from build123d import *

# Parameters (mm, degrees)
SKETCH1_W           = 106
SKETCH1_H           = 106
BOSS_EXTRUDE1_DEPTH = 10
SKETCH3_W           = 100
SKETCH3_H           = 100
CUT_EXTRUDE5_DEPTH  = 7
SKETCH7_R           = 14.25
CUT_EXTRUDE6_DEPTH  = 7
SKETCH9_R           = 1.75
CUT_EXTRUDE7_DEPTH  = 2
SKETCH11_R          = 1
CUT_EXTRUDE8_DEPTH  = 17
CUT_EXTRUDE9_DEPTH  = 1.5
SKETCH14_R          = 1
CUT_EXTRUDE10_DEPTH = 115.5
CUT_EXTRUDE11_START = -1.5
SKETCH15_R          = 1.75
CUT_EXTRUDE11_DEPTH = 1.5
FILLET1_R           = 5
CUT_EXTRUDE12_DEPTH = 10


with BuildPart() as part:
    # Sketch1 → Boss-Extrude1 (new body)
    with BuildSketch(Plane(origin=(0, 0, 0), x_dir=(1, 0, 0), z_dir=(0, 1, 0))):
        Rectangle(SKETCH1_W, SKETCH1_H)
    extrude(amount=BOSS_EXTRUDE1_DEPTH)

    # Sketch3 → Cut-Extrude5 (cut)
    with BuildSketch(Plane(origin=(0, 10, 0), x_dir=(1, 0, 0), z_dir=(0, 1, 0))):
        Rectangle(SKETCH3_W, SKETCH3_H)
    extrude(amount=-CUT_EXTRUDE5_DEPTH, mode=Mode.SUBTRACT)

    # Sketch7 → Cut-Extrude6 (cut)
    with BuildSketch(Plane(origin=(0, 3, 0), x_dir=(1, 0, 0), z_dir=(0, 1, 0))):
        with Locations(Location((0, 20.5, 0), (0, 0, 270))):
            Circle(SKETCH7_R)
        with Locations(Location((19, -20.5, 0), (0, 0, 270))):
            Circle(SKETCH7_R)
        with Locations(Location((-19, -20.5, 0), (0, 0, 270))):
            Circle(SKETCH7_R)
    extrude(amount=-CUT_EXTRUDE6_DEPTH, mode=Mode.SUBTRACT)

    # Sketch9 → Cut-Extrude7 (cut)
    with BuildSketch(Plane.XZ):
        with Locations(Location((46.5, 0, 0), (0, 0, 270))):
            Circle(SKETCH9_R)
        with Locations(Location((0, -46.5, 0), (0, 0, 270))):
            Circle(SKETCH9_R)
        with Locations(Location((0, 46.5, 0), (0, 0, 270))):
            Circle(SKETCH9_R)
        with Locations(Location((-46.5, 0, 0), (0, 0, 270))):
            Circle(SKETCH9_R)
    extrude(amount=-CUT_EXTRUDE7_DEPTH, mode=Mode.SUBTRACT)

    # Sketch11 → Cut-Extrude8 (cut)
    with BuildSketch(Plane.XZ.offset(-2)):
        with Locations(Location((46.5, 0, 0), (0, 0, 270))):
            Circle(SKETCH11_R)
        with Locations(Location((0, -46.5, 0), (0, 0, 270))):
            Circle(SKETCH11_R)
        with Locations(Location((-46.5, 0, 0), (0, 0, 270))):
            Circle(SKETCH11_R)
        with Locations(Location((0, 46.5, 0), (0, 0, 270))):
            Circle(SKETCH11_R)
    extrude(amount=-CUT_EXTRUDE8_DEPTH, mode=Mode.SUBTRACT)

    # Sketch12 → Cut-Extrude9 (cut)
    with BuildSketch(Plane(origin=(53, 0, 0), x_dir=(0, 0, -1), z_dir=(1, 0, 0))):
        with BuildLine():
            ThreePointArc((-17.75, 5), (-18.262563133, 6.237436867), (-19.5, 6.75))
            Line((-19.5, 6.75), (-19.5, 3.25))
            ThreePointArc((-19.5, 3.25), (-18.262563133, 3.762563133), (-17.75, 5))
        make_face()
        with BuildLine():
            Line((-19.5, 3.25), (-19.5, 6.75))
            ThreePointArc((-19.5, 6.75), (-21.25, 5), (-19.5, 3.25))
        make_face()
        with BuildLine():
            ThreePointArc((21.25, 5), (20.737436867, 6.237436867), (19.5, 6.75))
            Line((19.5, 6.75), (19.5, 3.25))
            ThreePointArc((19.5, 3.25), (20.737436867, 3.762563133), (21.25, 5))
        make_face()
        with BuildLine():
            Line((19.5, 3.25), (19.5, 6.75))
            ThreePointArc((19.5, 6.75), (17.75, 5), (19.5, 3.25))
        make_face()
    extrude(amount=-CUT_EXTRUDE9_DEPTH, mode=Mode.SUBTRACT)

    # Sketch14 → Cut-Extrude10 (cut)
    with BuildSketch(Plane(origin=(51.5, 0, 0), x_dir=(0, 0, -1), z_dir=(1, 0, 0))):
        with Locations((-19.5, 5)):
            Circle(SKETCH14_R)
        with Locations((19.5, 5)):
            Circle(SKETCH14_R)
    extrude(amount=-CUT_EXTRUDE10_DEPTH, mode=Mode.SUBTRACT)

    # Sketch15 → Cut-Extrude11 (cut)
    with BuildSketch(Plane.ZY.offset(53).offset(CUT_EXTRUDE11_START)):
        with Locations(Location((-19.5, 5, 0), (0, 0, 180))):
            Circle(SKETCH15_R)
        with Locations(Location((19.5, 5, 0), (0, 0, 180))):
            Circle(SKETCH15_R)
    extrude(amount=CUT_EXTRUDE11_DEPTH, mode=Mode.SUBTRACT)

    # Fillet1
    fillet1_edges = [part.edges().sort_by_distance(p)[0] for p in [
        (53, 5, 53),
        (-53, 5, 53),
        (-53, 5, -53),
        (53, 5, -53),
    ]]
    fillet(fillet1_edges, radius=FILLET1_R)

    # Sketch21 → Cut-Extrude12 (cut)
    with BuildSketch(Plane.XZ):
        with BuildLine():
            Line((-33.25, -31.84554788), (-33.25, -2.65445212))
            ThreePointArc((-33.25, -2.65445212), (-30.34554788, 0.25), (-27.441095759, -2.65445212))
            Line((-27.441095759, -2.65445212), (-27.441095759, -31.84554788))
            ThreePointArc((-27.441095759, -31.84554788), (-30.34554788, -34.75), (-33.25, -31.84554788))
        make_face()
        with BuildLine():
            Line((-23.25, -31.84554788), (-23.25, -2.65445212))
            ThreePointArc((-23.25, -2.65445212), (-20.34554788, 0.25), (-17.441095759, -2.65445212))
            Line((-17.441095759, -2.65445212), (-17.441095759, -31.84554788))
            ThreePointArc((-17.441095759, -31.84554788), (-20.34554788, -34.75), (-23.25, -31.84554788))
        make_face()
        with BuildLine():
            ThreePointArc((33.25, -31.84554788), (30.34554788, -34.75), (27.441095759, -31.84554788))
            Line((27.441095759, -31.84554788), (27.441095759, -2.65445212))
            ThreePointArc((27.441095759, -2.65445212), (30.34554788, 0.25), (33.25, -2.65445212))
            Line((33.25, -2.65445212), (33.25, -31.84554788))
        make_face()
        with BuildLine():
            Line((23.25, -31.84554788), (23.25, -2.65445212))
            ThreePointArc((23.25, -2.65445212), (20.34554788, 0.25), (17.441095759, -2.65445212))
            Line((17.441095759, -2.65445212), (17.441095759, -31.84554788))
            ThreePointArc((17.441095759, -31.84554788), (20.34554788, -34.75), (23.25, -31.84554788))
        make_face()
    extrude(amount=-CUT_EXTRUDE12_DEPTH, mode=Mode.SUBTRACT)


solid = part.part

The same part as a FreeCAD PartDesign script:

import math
import FreeCAD as App
import Part
import Sketcher

V = App.Vector


def edges_at(feature, points):
    """Names of the edges that pass closest to the given points."""
    edges = feature.Shape.Edges
    near = lambda p: min(range(len(edges)), key=lambda i: edges[i].distToShape(Part.Vertex(*p))[0])
    return sorted({f"Edge{near(p) + 1}" for p in points})

doc = App.newDocument("Part")
body = doc.addObject("PartDesign::Body", "Body")

sketch1 = doc.addObject("Sketcher::SketchObject", "Sketch")
body.addObject(sketch1)
sketch1.AttachmentSupport = (doc.XZ_Plane, [""])
sketch1.MapMode = "FlatFace"
sketch1.addGeometry([
    Part.LineSegment(V(-53, -53, 0), V(-53, 53, 0)),
    Part.LineSegment(V(-53, 53, 0), V(53, 53, 0)),
    Part.LineSegment(V(53, 53, 0), V(53, -53, 0)),
    Part.LineSegment(V(53, -53, 0), V(-53, -53, 0)),
], False)
sketch1.addConstraint([
    Sketcher.Constraint("Coincident", 0, 2, 1, 1),
    Sketcher.Constraint("Coincident", 1, 2, 2, 1),
    Sketcher.Constraint("Coincident", 2, 2, 3, 1),
    Sketcher.Constraint("Coincident", 3, 2, 0, 1),
    Sketcher.Constraint("Vertical", 0),
    Sketcher.Constraint("Horizontal", 1),
    Sketcher.Constraint("Vertical", 2),
    Sketcher.Constraint("Horizontal", 3),
    Sketcher.Constraint("Symmetric", 0, 2, 2, 2, -1, 1),
    Sketcher.Constraint("Equal", 3, 0),
    Sketcher.Constraint("DistanceX", 1, 1, 1, 2, 106.0),
])
pad1 = doc.addObject("PartDesign::Pad", "Pad")
body.addObject(pad1)
pad1.Profile = sketch1
pad1.Length = 10
pad1.Reversed = True

sketch2 = doc.addObject("Sketcher::SketchObject", "Sketch001")
body.addObject(sketch2)
sketch2.AttachmentSupport = (doc.XZ_Plane, [""])
sketch2.MapMode = "FlatFace"
sketch2.AttachmentOffset = App.Placement(V(0, 0, -10), App.Rotation())
sketch2.addGeometry([
    Part.LineSegment(V(-50, -50, 0), V(-50, 50, 0)),
    Part.LineSegment(V(-50, 50, 0), V(50, 50, 0)),
    Part.LineSegment(V(50, 50, 0), V(50, -50, 0)),
    Part.LineSegment(V(50, -50, 0), V(-50, -50, 0)),
], False)
sketch2.addConstraint([
    Sketcher.Constraint("Coincident", 0, 2, 1, 1),
    Sketcher.Constraint("Coincident", 1, 2, 2, 1),
    Sketcher.Constraint("Coincident", 2, 2, 3, 1),
    Sketcher.Constraint("Coincident", 3, 2, 0, 1),
    Sketcher.Constraint("Vertical", 0),
    Sketcher.Constraint("Horizontal", 1),
    Sketcher.Constraint("Vertical", 2),
    Sketcher.Constraint("Horizontal", 3),
    Sketcher.Constraint("Symmetric", 0, 2, 2, 2, -1, 1),
    Sketcher.Constraint("Equal", 3, 0),
    Sketcher.Constraint("DistanceX", 1, 1, 1, 2, 100.0),
])
pocket1 = doc.addObject("PartDesign::Pocket", "Pocket")
body.addObject(pocket1)
pocket1.Profile = sketch2
pocket1.Length = 7
pocket1.Reversed = True

sketch3 = doc.addObject("Sketcher::SketchObject", "Sketch002")
body.addObject(sketch3)
sketch3.AttachmentSupport = (doc.XZ_Plane, [""])
sketch3.MapMode = "FlatFace"
sketch3.AttachmentOffset = App.Placement(V(0, 0, -3), App.Rotation())
sketch3.addGeometry([
    Part.Circle(V(0, -20, 0), V(0, 0, 1), 14),
    Part.Circle(V(19, 20, 0), V(0, 0, 1), 14),
    Part.Circle(V(-19, 20, 0), V(0, 0, 1), 14),
], False)
sketch3.addConstraint([
    Sketcher.Constraint("Equal", 0, 1),
    Sketcher.Constraint("Equal", 1, 2),
    Sketcher.Constraint("Symmetric", 1, 3, 2, 3, -2),
    Sketcher.Constraint("PointOnObject", 0, 3, -2),
    Sketcher.Constraint("Diameter", 0, 28.5),
    Sketcher.Constraint("DistanceX", -1, 1, 1, 3, 19.0),
    Sketcher.Constraint("DistanceY", 0, 3, 1, 3, 41.0),
    Sketcher.Constraint("DistanceY", 0, 3, -1, 1, 20.5),
])
pocket2 = doc.addObject("PartDesign::Pocket", "Pocket001")
body.addObject(pocket2)
pocket2.Profile = sketch3
pocket2.Length = 7
pocket2.Reversed = True

sketch4 = doc.addObject("Sketcher::SketchObject", "Sketch003")
body.addObject(sketch4)
sketch4.AttachmentSupport = (doc.XZ_Plane, [""])
sketch4.MapMode = "FlatFace"
sketch4.addGeometry([
    Part.Circle(V(46.5, 0, 0), V(0, 0, 1), 1.8),
    Part.Circle(V(0, -46.5, 0), V(0, 0, 1), 1.8),
    Part.Circle(V(0, 46.5, 0), V(0, 0, 1), 1.8),
    Part.Circle(V(-46.5, 0, 0), V(0, 0, 1), 1.8),
], False)
sketch4.addConstraint([
    Sketcher.Constraint("Equal", 0, 1),
    Sketcher.Constraint("Equal", 1, 2),
    Sketcher.Constraint("Equal", 2, 3),
    Sketcher.Constraint("Symmetric", 1, 3, 2, 3, -1, 1),
    Sketcher.Constraint("Symmetric", 0, 3, 3, 3, -1, 1),
    Sketcher.Constraint("PointOnObject", 0, 3, -1),
    Sketcher.Constraint("PointOnObject", 1, 3, -2),
    Sketcher.Constraint("Diameter", 0, 3.5),
    Sketcher.Constraint("DistanceY", 1, 3, 2, 3, 93.0),
    Sketcher.Constraint("DistanceX", 3, 3, 0, 3, 93.0),
])
pocket3 = doc.addObject("PartDesign::Pocket", "Pocket002")
body.addObject(pocket3)
pocket3.Profile = sketch4
pocket3.Length = 2

sketch5 = doc.addObject("Sketcher::SketchObject", "Sketch004")
body.addObject(sketch5)
sketch5.AttachmentSupport = (doc.XZ_Plane, [""])
sketch5.MapMode = "FlatFace"
sketch5.AttachmentOffset = App.Placement(V(0, 0, -2), App.Rotation())
sketch5.addGeometry([
    Part.Circle(V(46.5, 0, 0), V(0, 0, 1), 1),
    Part.Circle(V(0, -46.5, 0), V(0, 0, 1), 1),
    Part.Circle(V(-46.5, 0, 0), V(0, 0, 1), 1),
    Part.Circle(V(0, 46.5, 0), V(0, 0, 1), 1),
], False)
sketch5.addConstraint([
    Sketcher.Constraint("Equal", 0, 1),
    Sketcher.Constraint("Equal", 1, 2),
    Sketcher.Constraint("Equal", 2, 3),
    Sketcher.Constraint("Symmetric", 0, 3, 2, 3, -1, 1),
    Sketcher.Constraint("Symmetric", 1, 3, 3, 3, -1, 1),
    Sketcher.Constraint("PointOnObject", 0, 3, -1),
    Sketcher.Constraint("PointOnObject", 1, 3, -2),
    Sketcher.Constraint("Diameter", 0, 2.0),
    Sketcher.Constraint("DistanceX", 2, 3, 0, 3, 93.0),
    Sketcher.Constraint("DistanceY", 1, 3, 3, 3, 93.0),
])
pocket4 = doc.addObject("PartDesign::Pocket", "Pocket003")
body.addObject(pocket4)
pocket4.Profile = sketch5
pocket4.Length = 17

sketch6 = doc.addObject("Sketcher::SketchObject", "Sketch005")
body.addObject(sketch6)
sketch6.AttachmentSupport = (doc.YZ_Plane, [""])
sketch6.MapMode = "FlatFace"
sketch6.AttachmentOffset = App.Placement(V(0, 0, 53), App.Rotation())
sketch6.addGeometry([
    Part.ArcOfCircle(Part.Circle(V(5, 19.5, 0), V(0, 0, 1), 1.8), math.radians(-90), math.radians(0)),
    Part.ArcOfCircle(Part.Circle(V(5, 19.5, 0), V(0, 0, 1), 1.8), math.radians(0), math.radians(180)),
    Part.ArcOfCircle(Part.Circle(V(5, 19.5, 0), V(0, 0, 1), 1.8), math.radians(180), math.radians(270)),
    Part.ArcOfCircle(Part.Circle(V(5, -19.5, 0), V(0, 0, 1), 1.8), math.radians(-90), math.radians(0)),
    Part.ArcOfCircle(Part.Circle(V(5, -19.5, 0), V(0, 0, 1), 1.8), math.radians(0), math.radians(180)),
    Part.ArcOfCircle(Part.Circle(V(5, -19.5, 0), V(0, 0, 1), 1.8), math.radians(180), math.radians(270)),
], False)
sketch6.addConstraint([
    Sketcher.Constraint("Tangent", 0, 2, 1, 1),
    Sketcher.Constraint("Tangent", 1, 2, 2, 1),
    Sketcher.Constraint("Tangent", 2, 2, 0, 1),
    Sketcher.Constraint("Tangent", 3, 2, 4, 1),
    Sketcher.Constraint("Tangent", 4, 2, 5, 1),
    Sketcher.Constraint("Tangent", 5, 2, 3, 1),
    Sketcher.Constraint("Equal", 2, 3),
    Sketcher.Constraint("Symmetric", 0, 3, 3, 3, -1),
    Sketcher.Constraint("Horizontal", 2, 3, 0, 2),
    Sketcher.Constraint("Horizontal", 0, 2, 1, 2),
    Sketcher.Constraint("Horizontal", 5, 3, 3, 2),
    Sketcher.Constraint("Horizontal", 3, 2, 4, 2),
    Sketcher.Constraint("Vertical", 5, 3, 2, 2),
    Sketcher.Constraint("Vertical", 2, 2, 5, 2),
    Sketcher.Constraint("Radius", 0, 1.75),
    Sketcher.Constraint("DistanceX", -1, 1, 0, 3, 5.0),
    Sketcher.Constraint("DistanceY", 3, 3, 0, 3, 39.0),
])
pocket5 = doc.addObject("PartDesign::Pocket", "Pocket004")
body.addObject(pocket5)
pocket5.Profile = sketch6
pocket5.Length = 1.5

sketch7 = doc.addObject("Sketcher::SketchObject", "Sketch006")
body.addObject(sketch7)
sketch7.AttachmentSupport = (doc.YZ_Plane, [""])
sketch7.MapMode = "FlatFace"
sketch7.AttachmentOffset = App.Placement(V(0, 0, 51.5), App.Rotation())
sketch7.addGeometry([
    Part.Circle(V(5, 19.5, 0), V(0, 0, 1), 1),
    Part.Circle(V(5, -19.5, 0), V(0, 0, 1), 1),
], False)
sketch7.addConstraint([
    Sketcher.Constraint("Equal", 0, 1),
    Sketcher.Constraint("Symmetric", 0, 3, 1, 3, -1),
    Sketcher.Constraint("Diameter", 0, 2.0),
    Sketcher.Constraint("DistanceX", -1, 1, 0, 3, 5.0),
    Sketcher.Constraint("DistanceY", 1, 3, 0, 3, 39.0),
])
pocket6 = doc.addObject("PartDesign::Pocket", "Pocket005")
body.addObject(pocket6)
pocket6.Profile = sketch7
pocket6.Length = 115.5

sketch8 = doc.addObject("Sketcher::SketchObject", "Sketch007")
body.addObject(sketch8)
sketch8.AttachmentSupport = (doc.YZ_Plane, [""])
sketch8.MapMode = "FlatFace"
sketch8.AttachmentOffset = App.Placement(V(0, 0, -51.5), App.Rotation())
sketch8.addGeometry([
    Part.Circle(V(5, -19.5, 0), V(0, 0, 1), 1.8),
    Part.Circle(V(5, 19.5, 0), V(0, 0, 1), 1.8),
], False)
sketch8.addConstraint([
    Sketcher.Constraint("Equal", 0, 1),
    Sketcher.Constraint("Symmetric", 0, 3, 1, 3, -1),
    Sketcher.Constraint("Diameter", 0, 3.5),
    Sketcher.Constraint("DistanceX", -1, 1, 0, 3, 5.0),
    Sketcher.Constraint("DistanceY", 0, 3, 1, 3, 39.0),
])
pocket7 = doc.addObject("PartDesign::Pocket", "Pocket006")
body.addObject(pocket7)
pocket7.Profile = sketch8
pocket7.Length = 1.5
doc.recompute()

fillet = doc.addObject("PartDesign::Fillet", "Fillet")
body.addObject(fillet)
fillet.Base = (pocket7, edges_at(pocket7, [
    (53, 5, 53),
    (-53, 5, 53),
    (-53, 5, -53),
    (53, 5, -53),
]))
fillet.Radius = 5

sketch9 = doc.addObject("Sketcher::SketchObject", "Sketch008")
body.addObject(sketch9)
sketch9.AttachmentSupport = (doc.XZ_Plane, [""])
sketch9.MapMode = "FlatFace"
sketch9.addGeometry([
    Part.LineSegment(V(-33.2, -2.7, 0), V(-33.2, -31.8, 0)),
    Part.ArcOfCircle(Part.Circle(V(-30.3, -31.8, 0), V(0, 0, 1), 2.9), math.radians(-180), math.radians(0)),
    Part.LineSegment(V(-27.4, -31.8, 0), V(-27.4, -2.7, 0)),
    Part.ArcOfCircle(Part.Circle(V(-30.3, -2.7, 0), V(0, 0, 1), 2.9), math.radians(0), math.radians(180)),
    Part.LineSegment(V(-23.2, -2.7, 0), V(-23.2, -31.8, 0)),
    Part.ArcOfCircle(Part.Circle(V(-20.3, -31.8, 0), V(0, 0, 1), 2.9), math.radians(-180), math.radians(0)),
    Part.LineSegment(V(-17.4, -31.8, 0), V(-17.4, -2.7, 0)),
    Part.ArcOfCircle(Part.Circle(V(-20.3, -2.7, 0), V(0, 0, 1), 2.9), math.radians(0), math.radians(180)),
    Part.ArcOfCircle(Part.Circle(V(30.3, -31.8, 0), V(0, 0, 1), 2.9), math.radians(-180), math.radians(0)),
    Part.LineSegment(V(33.2, -31.8, 0), V(33.2, -2.7, 0)),
    Part.ArcOfCircle(Part.Circle(V(30.3, -2.7, 0), V(0, 0, 1), 2.9), math.radians(0), math.radians(180)),
    Part.LineSegment(V(27.4, -2.7, 0), V(27.4, -31.8, 0)),
    Part.LineSegment(V(23.2, -31.8, 0), V(23.2, -2.7, 0)),
    Part.ArcOfCircle(Part.Circle(V(20.3, -2.7, 0), V(0, 0, 1), 2.9), math.radians(0), math.radians(180)),
    Part.LineSegment(V(17.4, -2.7, 0), V(17.4, -31.8, 0)),
    Part.ArcOfCircle(Part.Circle(V(20.3, -31.8, 0), V(0, 0, 1), 2.9), math.radians(-180), math.radians(0)),
], False)
sketch9.addConstraint([
    Sketcher.Constraint("Tangent", 0, 2, 1, 1),
    Sketcher.Constraint("Tangent", 1, 2, 2, 1),
    Sketcher.Constraint("Tangent", 2, 2, 3, 1),
    Sketcher.Constraint("Tangent", 3, 2, 0, 1),
    Sketcher.Constraint("Tangent", 4, 2, 5, 1),
    Sketcher.Constraint("Tangent", 5, 2, 6, 1),
    Sketcher.Constraint("Tangent", 6, 2, 7, 1),
    Sketcher.Constraint("Tangent", 7, 2, 4, 1),
    Sketcher.Constraint("Tangent", 8, 2, 9, 1),
    Sketcher.Constraint("Tangent", 9, 2, 10, 1),
    Sketcher.Constraint("Tangent", 10, 2, 11, 1),
    Sketcher.Constraint("Tangent", 11, 2, 8, 1),
    Sketcher.Constraint("Tangent", 12, 2, 13, 1),
    Sketcher.Constraint("Tangent", 13, 2, 14, 1),
    Sketcher.Constraint("Tangent", 14, 2, 15, 1),
    Sketcher.Constraint("Tangent", 15, 2, 12, 1),
    Sketcher.Constraint("Vertical", 0),
    Sketcher.Constraint("Vertical", 2),
    Sketcher.Constraint("Vertical", 4),
    Sketcher.Constraint("Vertical", 6),
    Sketcher.Constraint("Vertical", 9),
    Sketcher.Constraint("Vertical", 11),
    Sketcher.Constraint("Vertical", 12),
    Sketcher.Constraint("Vertical", 14),
    Sketcher.Constraint("Equal", 3, 5),
    Sketcher.Constraint("Equal", 7, 8),
    Sketcher.Constraint("Equal", 10, 13),
    Sketcher.Constraint("Symmetric", 1, 3, 8, 3, -2),
    Sketcher.Constraint("Symmetric", 7, 3, 13, 3, -2),
    Sketcher.Constraint("Horizontal", 1, 3, 5, 3),
    Sketcher.Constraint("Horizontal", 3, 3, 7, 3),
    Sketcher.Constraint("Horizontal", 7, 3, 10, 3),
    Sketcher.Constraint("Horizontal", 8, 3, 15, 3),
    Sketcher.Constraint("DistanceX", 1, 3, 5, 3, 10.0),
    Sketcher.Constraint("DistanceX", 0, 2, -1, 1, 33.25),
    Sketcher.Constraint("Radius", 1, 2.904452),
    Sketcher.Constraint("DistanceY", 0, 2, 0, 1, 29.191096),
    Sketcher.Constraint("DistanceY", 1, 3, -1, 1, 31.845548),
])
pocket8 = doc.addObject("PartDesign::Pocket", "Pocket007")
body.addObject(pocket8)
pocket8.Profile = sketch9
pocket8.Length = 10

doc.recompute()
